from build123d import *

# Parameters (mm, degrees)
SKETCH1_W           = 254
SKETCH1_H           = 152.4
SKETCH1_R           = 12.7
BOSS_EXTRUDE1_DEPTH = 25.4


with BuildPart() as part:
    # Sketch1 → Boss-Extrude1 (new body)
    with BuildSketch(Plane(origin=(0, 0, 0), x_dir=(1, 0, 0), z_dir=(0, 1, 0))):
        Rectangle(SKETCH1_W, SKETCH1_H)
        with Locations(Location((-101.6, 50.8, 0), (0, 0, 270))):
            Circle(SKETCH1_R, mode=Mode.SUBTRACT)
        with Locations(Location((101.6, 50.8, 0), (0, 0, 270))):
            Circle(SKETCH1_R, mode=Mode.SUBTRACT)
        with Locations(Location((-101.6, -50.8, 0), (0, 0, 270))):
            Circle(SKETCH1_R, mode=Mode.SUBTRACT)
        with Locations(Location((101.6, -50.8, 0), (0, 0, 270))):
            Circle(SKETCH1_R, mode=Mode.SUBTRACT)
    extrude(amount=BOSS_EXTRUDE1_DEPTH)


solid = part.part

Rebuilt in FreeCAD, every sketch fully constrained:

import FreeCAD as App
import Part
import Sketcher
Q = App.Units.Quantity


def add_polygon(sketch, points):
    """Adds a closed chain of lines whose ends are joined by coincident constraints."""
    first, n = sketch.GeometryCount, len(points)
    for a, b in zip(points, points[1:] + points[:1]):
        sketch.addGeometry(Part.LineSegment(App.Vector(*a, 0), App.Vector(*b, 0)), False)
    for i in range(n):
        sketch.addConstraint(Sketcher.Constraint("Coincident", first + i, 2, first + (i + 1) % n, 1))

doc = App.newDocument("Part")
body = doc.addObject("PartDesign::Body", "Body")

# Sketch on XZ plane
sketch1 = body.newObject("Sketcher::SketchObject", "Sketch")
sketch1.AttachmentSupport = (doc.getObject("XZ_Plane"), [""])
sketch1.MapMode = "FlatFace"
add_polygon(sketch1, [(-127, -76.2), (-127, 76.2), (127, 76.2), (127, -76.2)])  # lines 0-3
sketch1.addGeometry(Part.Circle(App.Vector(-101.6, 50.8, 0), App.Vector(0, 0, 1), 12.7), False)  # 4
sketch1.addGeometry(Part.Circle(App.Vector(101.6, 50.8, 0), App.Vector(0, 0, 1), 12.7), False)  # 5
sketch1.addGeometry(Part.Circle(App.Vector(-101.6, -50.8, 0), App.Vector(0, 0, 1), 12.7), False)  # 6
sketch1.addGeometry(Part.Circle(App.Vector(101.6, -50.8, 0), App.Vector(0, 0, 1), 12.7), False)  # 7
sketch1.addConstraint([
    Sketcher.Constraint("Vertical", 0),
    Sketcher.Constraint("Horizontal", 1),
    Sketcher.Constraint("Vertical", 2),
    Sketcher.Constraint("Horizontal", 3),
    Sketcher.Constraint("Equal", 4, 5),
    Sketcher.Constraint("Equal", 5, 6),
    Sketcher.Constraint("Equal", 6, 7),
    Sketcher.Constraint("Symmetric", 5, 3, 6, 3, -1, 1),
    Sketcher.Constraint("Symmetric", 4, 3, 7, 3, -1, 1),
    Sketcher.Constraint("Symmetric", 0, 2, 2, 2, -1, 1),
    Sketcher.Constraint("Symmetric", 4, 3, 5, 3, -2),
    Sketcher.Constraint("Diameter", 4, Q("1 in")),
    Sketcher.Constraint("DistanceX", 1, 1, 1, 2, Q("10 in")),
    Sketcher.Constraint("DistanceY", 0, 1, 0, 2, Q("6 in")),
    Sketcher.Constraint("DistanceX", 4, 3, -1, 1, Q("4 in")),
    Sketcher.Constraint("DistanceY", -1, 1, 4, 3, Q("2 in")),
])
pad1 = body.newObject("PartDesign::Pad", "Pad")
pad1.Profile = sketch1
pad1.Length = Q("1 in")
pad1.Reversed = True

doc.recompute()
